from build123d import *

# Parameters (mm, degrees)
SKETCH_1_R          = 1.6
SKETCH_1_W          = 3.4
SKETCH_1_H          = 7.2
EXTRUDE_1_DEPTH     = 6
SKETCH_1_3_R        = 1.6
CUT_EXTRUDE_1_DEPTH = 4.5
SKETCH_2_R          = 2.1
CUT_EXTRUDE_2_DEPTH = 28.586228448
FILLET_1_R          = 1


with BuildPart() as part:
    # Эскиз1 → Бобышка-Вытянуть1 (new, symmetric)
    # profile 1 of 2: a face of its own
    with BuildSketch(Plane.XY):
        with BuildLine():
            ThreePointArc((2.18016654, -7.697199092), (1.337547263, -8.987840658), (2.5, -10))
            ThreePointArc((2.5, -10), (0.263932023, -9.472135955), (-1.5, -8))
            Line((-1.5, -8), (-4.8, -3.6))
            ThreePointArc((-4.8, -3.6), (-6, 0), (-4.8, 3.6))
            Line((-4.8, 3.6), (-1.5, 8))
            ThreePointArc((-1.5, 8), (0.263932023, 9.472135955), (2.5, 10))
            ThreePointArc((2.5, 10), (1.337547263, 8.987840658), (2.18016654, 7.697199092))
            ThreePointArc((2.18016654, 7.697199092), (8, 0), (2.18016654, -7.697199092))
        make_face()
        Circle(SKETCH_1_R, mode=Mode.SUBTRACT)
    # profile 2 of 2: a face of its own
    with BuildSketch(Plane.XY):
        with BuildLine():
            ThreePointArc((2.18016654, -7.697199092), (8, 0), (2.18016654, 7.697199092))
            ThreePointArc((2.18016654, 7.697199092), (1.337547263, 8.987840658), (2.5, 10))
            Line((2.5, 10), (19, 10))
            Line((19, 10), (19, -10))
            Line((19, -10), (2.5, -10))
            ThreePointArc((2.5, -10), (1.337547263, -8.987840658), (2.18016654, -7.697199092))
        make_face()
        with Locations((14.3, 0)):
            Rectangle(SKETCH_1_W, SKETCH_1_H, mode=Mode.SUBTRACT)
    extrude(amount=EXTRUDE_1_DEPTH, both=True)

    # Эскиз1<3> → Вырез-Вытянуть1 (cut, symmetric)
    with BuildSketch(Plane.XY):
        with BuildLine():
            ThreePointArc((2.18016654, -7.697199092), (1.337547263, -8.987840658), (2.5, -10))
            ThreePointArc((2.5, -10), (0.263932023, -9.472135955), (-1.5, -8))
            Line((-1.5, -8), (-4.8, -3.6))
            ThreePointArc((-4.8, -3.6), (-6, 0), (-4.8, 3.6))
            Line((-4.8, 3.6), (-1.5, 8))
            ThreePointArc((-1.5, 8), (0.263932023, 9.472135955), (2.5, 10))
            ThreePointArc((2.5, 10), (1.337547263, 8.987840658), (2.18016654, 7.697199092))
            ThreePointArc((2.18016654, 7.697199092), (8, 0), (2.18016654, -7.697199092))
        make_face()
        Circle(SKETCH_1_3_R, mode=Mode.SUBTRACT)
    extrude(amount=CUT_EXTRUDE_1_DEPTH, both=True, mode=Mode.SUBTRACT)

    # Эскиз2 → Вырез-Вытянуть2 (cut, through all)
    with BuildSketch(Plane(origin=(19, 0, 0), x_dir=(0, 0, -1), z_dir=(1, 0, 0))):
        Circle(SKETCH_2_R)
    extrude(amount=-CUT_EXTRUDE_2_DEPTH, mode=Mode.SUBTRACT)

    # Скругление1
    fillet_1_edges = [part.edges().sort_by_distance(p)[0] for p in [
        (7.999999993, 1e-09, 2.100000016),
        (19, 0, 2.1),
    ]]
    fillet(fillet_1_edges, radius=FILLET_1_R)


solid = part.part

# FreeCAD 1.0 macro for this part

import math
import FreeCAD as App
import Part
import Sketcher
from FreeCAD import Vector


def edges_at(feature, points):
    """Names of the edges that pass closest to the given points."""
    edges = feature.Shape.Edges
    near = lambda p: min(range(len(edges)), key=lambda i: edges[i].distToShape(Part.Vertex(*p))[0])
    return sorted({f"Edge{near(p) + 1}" for p in points})


def add_polygon(sketch, points):
    """Adds a closed chain of lines whose ends are joined by coincident constraints."""
    first, n = sketch.GeometryCount, len(points)
    for a, b in zip(points, points[1:] + points[:1]):
        sketch.addGeometry(Part.LineSegment(App.Vector(*a, 0), App.Vector(*b, 0)), False)
    for i in range(n):
        sketch.addConstraint(Sketcher.Constraint("Coincident", first + i, 2, first + (i + 1) % n, 1))

doc = App.newDocument("Part")
body = doc.addObject("PartDesign::Body", "Body")

sketch1 = body.newObject("Sketcher::SketchObject", "Sketch")
sketch1.AttachmentSupport = (doc.getObject("XY_Plane"), [""])
sketch1.MapMode = "FlatFace"
sketch1.addGeometry(Part.ArcOfCircle(Part.Circle(Vector(2.5, -5, 0), Vector(0, 0, 1), 5), math.radians(-143), math.radians(-90)), False)
sketch1.addGeometry(Part.LineSegment(Vector(2.5, -10, 0), Vector(19, -10, 0)), False)
sketch1.addGeometry(Part.LineSegment(Vector(19, -10, 0), Vector(19, 10, 0)), False)
sketch1.addGeometry(Part.LineSegment(Vector(19, 10, 0), Vector(2.5, 10, 0)), False)
sketch1.addGeometry(Part.ArcOfCircle(Part.Circle(Vector(2.5, 5, 0), Vector(0, 0, 1), 5), math.radians(90), math.radians(143)), False)
sketch1.addGeometry(Part.LineSegment(Vector(-1.5, 8, 0), Vector(-4.8, 3.6, 0)), False)
sketch1.addGeometry(Part.ArcOfCircle(Part.Circle(Vector(0, 0, 0), Vector(0, 0, 1), 6), math.radians(143), math.radians(217)), False)
sketch1.addGeometry(Part.LineSegment(Vector(-4.8, -3.6, 0), Vector(-1.5, -8, 0)), False)
sketch1.addGeometry(Part.Circle(Vector(0, 0, 0), Vector(0, 0, 1), 1.6), False)
add_polygon(sketch1, [(16, 3.6), (16, -3.6), (12.6, -3.6), (12.6, 3.6)])
sketch1.addConstraint([
    Sketcher.Constraint("Tangent", 0, 2, 1, 1),
    Sketcher.Constraint("Coincident", 1, 2, 2, 1),
    Sketcher.Constraint("Coincident", 2, 2, 3, 1),
    Sketcher.Constraint("Tangent", 3, 2, 4, 1),
    Sketcher.Constraint("Tangent", 4, 2, 5, 1),
    Sketcher.Constraint("Tangent", 5, 2, 6, 1),
    Sketcher.Constraint("Tangent", 6, 2, 7, 1),
    Sketcher.Constraint("Tangent", 7, 2, 0, 1),
    Sketcher.Constraint("Horizontal", 1),
    Sketcher.Constraint("Vertical", 2),
    Sketcher.Constraint("Horizontal", 3),
    Sketcher.Constraint("Vertical", 9),
    Sketcher.Constraint("Horizontal", 10),
    Sketcher.Constraint("Vertical", 11),
    Sketcher.Constraint("Horizontal", 12),
    Sketcher.Constraint("Coincident", 6, 3, -1, 1),
    Sketcher.Constraint("Coincident", 8, 3, -1, 1),
    Sketcher.Constraint("Equal", 0, 4),
    Sketcher.Constraint("Symmetric", 0, 3, 4, 3, -1),
    Sketcher.Constraint("Horizontal", 6, 2, 9, 2),
    Sketcher.Constraint("Horizontal", 5, 2, 11, 2),
    Sketcher.Constraint("Radius", 0, 5.0),
    Sketcher.Constraint("Radius", 6, 6.0),
    Sketcher.Constraint("Diameter", 8, 3.2),
    Sketcher.Constraint("DistanceY", 2, 1, 2, 2, 20.0),
    Sketcher.Constraint("DistanceX", 1, 1, 1, 2, 16.5),
    Sketcher.Constraint("DistanceX", 10, 2, 10, 1, 3.4),
    Sketcher.Constraint("DistanceY", 9, 2, 9, 1, 7.2),
    Sketcher.Constraint("DistanceX", -1, 1, 9, 2, 16.0),
])
pad1 = body.newObject("PartDesign::Pad", "Pad")
pad1.Profile = sketch1
pad1.Length = 12
pad1.Midplane = True

sketch2 = body.newObject("Sketcher::SketchObject", "Sketch001")
sketch2.AttachmentSupport = (doc.getObject("XY_Plane"), [""])
sketch2.MapMode = "FlatFace"
sketch2.addGeometry([
    Part.ArcOfCircle(Part.Circle(Vector(2.5, -8.8, 0), Vector(0, 0, 1), 1.2), math.radians(106), math.radians(270)),
    Part.ArcOfCircle(Part.Circle(Vector(0, 0, 0), Vector(0, 0, 1), 8), math.radians(-74), math.radians(74)),
    Part.ArcOfCircle(Part.Circle(Vector(2.5, 8.8, 0), Vector(0, 0, 1), 1.2), math.radians(90), math.radians(254)),
    Part.ArcOfCircle(Part.Circle(Vector(2.5, 5, 0), Vector(0, 0, 1), 5), math.radians(90), math.radians(143)),
    Part.LineSegment(Vector(-1.5, 8, 0), Vector(-4.8, 3.6, 0)),
    Part.ArcOfCircle(Part.Circle(Vector(0, 0, 0), Vector(0, 0, 1), 6), math.radians(143), math.radians(217)),
    Part.LineSegment(Vector(-4.8, -3.6, 0), Vector(-1.5, -8, 0)),
    Part.ArcOfCircle(Part.Circle(Vector(2.5, -5, 0), Vector(0, 0, 1), 5), math.radians(-143), math.radians(-90)),
    Part.Circle(Vector(0, 0, 0), Vector(0, 0, 1), 1.6),
], False)
sketch2.addConstraint([
    Sketcher.Constraint("Tangent", 0, 1, 1, 1),
    Sketcher.Constraint("Tangent", 1, 2, 2, 2),
    Sketcher.Constraint("Tangent", 2, 1, 3, 1),
    Sketcher.Constraint("Tangent", 3, 2, 4, 1),
    Sketcher.Constraint("Tangent", 4, 2, 5, 1),
    Sketcher.Constraint("Tangent", 5, 2, 6, 1),
    Sketcher.Constraint("Tangent", 6, 2, 7, 1),
    Sketcher.Constraint("Tangent", 7, 2, 0, 2),
    Sketcher.Constraint("Coincident", 1, 3, -1, 1),
    Sketcher.Constraint("Coincident", 5, 3, -1, 1),
    Sketcher.Constraint("Coincident", 8, 3, -1, 1),
    Sketcher.Constraint("Equal", 0, 2),
    Sketcher.Constraint("Equal", 3, 7),
    Sketcher.Constraint("Symmetric", 3, 3, 7, 3, -1),
    Sketcher.Constraint("Vertical", 2, 3, 3, 3),
    Sketcher.Constraint("Radius", 1, 8.0),
    Sketcher.Constraint("Radius", 3, 5.0),
    Sketcher.Constraint("Radius", 5, 6.0),
    Sketcher.Constraint("Diameter", 8, 3.2),
    Sketcher.Constraint("DistanceY", -1, 1, 3, 3, 5.0),
    Sketcher.Constraint("DistanceY", -1, 1, 3, 2, 8.0),
])
pocket1 = body.newObject("PartDesign::Pocket", "Pocket")
pocket1.Profile = sketch2
pocket1.Length = 9
pocket1.Midplane = True

sketch3 = body.newObject("Sketcher::SketchObject", "Sketch002")
sketch3.AttachmentSupport = (doc.getObject("YZ_Plane"), [""])
sketch3.MapMode = "FlatFace"
sketch3.AttachmentOffset = App.Placement(Vector(0, 0, 19), App.Rotation())
sketch3.addGeometry(Part.Circle(Vector(0, 0, 0), Vector(0, 0, 1), 2.1), False)
sketch3.addConstraint([
    Sketcher.Constraint("Coincident", 0, 3, -1, 1),
    Sketcher.Constraint("Diameter", 0, 4.2),
])
pocket2 = body.newObject("PartDesign::Pocket", "Pocket001")
pocket2.Profile = sketch3
pocket2.Type = "ThroughAll"
doc.recompute()

fillet = body.newObject("PartDesign::Fillet", "Fillet")
fillet.Base = (pocket2, edges_at(pocket2, [(8, 0, 2.1), (19, 0, 2.1)]))
fillet.Radius = 1

doc.recompute()
